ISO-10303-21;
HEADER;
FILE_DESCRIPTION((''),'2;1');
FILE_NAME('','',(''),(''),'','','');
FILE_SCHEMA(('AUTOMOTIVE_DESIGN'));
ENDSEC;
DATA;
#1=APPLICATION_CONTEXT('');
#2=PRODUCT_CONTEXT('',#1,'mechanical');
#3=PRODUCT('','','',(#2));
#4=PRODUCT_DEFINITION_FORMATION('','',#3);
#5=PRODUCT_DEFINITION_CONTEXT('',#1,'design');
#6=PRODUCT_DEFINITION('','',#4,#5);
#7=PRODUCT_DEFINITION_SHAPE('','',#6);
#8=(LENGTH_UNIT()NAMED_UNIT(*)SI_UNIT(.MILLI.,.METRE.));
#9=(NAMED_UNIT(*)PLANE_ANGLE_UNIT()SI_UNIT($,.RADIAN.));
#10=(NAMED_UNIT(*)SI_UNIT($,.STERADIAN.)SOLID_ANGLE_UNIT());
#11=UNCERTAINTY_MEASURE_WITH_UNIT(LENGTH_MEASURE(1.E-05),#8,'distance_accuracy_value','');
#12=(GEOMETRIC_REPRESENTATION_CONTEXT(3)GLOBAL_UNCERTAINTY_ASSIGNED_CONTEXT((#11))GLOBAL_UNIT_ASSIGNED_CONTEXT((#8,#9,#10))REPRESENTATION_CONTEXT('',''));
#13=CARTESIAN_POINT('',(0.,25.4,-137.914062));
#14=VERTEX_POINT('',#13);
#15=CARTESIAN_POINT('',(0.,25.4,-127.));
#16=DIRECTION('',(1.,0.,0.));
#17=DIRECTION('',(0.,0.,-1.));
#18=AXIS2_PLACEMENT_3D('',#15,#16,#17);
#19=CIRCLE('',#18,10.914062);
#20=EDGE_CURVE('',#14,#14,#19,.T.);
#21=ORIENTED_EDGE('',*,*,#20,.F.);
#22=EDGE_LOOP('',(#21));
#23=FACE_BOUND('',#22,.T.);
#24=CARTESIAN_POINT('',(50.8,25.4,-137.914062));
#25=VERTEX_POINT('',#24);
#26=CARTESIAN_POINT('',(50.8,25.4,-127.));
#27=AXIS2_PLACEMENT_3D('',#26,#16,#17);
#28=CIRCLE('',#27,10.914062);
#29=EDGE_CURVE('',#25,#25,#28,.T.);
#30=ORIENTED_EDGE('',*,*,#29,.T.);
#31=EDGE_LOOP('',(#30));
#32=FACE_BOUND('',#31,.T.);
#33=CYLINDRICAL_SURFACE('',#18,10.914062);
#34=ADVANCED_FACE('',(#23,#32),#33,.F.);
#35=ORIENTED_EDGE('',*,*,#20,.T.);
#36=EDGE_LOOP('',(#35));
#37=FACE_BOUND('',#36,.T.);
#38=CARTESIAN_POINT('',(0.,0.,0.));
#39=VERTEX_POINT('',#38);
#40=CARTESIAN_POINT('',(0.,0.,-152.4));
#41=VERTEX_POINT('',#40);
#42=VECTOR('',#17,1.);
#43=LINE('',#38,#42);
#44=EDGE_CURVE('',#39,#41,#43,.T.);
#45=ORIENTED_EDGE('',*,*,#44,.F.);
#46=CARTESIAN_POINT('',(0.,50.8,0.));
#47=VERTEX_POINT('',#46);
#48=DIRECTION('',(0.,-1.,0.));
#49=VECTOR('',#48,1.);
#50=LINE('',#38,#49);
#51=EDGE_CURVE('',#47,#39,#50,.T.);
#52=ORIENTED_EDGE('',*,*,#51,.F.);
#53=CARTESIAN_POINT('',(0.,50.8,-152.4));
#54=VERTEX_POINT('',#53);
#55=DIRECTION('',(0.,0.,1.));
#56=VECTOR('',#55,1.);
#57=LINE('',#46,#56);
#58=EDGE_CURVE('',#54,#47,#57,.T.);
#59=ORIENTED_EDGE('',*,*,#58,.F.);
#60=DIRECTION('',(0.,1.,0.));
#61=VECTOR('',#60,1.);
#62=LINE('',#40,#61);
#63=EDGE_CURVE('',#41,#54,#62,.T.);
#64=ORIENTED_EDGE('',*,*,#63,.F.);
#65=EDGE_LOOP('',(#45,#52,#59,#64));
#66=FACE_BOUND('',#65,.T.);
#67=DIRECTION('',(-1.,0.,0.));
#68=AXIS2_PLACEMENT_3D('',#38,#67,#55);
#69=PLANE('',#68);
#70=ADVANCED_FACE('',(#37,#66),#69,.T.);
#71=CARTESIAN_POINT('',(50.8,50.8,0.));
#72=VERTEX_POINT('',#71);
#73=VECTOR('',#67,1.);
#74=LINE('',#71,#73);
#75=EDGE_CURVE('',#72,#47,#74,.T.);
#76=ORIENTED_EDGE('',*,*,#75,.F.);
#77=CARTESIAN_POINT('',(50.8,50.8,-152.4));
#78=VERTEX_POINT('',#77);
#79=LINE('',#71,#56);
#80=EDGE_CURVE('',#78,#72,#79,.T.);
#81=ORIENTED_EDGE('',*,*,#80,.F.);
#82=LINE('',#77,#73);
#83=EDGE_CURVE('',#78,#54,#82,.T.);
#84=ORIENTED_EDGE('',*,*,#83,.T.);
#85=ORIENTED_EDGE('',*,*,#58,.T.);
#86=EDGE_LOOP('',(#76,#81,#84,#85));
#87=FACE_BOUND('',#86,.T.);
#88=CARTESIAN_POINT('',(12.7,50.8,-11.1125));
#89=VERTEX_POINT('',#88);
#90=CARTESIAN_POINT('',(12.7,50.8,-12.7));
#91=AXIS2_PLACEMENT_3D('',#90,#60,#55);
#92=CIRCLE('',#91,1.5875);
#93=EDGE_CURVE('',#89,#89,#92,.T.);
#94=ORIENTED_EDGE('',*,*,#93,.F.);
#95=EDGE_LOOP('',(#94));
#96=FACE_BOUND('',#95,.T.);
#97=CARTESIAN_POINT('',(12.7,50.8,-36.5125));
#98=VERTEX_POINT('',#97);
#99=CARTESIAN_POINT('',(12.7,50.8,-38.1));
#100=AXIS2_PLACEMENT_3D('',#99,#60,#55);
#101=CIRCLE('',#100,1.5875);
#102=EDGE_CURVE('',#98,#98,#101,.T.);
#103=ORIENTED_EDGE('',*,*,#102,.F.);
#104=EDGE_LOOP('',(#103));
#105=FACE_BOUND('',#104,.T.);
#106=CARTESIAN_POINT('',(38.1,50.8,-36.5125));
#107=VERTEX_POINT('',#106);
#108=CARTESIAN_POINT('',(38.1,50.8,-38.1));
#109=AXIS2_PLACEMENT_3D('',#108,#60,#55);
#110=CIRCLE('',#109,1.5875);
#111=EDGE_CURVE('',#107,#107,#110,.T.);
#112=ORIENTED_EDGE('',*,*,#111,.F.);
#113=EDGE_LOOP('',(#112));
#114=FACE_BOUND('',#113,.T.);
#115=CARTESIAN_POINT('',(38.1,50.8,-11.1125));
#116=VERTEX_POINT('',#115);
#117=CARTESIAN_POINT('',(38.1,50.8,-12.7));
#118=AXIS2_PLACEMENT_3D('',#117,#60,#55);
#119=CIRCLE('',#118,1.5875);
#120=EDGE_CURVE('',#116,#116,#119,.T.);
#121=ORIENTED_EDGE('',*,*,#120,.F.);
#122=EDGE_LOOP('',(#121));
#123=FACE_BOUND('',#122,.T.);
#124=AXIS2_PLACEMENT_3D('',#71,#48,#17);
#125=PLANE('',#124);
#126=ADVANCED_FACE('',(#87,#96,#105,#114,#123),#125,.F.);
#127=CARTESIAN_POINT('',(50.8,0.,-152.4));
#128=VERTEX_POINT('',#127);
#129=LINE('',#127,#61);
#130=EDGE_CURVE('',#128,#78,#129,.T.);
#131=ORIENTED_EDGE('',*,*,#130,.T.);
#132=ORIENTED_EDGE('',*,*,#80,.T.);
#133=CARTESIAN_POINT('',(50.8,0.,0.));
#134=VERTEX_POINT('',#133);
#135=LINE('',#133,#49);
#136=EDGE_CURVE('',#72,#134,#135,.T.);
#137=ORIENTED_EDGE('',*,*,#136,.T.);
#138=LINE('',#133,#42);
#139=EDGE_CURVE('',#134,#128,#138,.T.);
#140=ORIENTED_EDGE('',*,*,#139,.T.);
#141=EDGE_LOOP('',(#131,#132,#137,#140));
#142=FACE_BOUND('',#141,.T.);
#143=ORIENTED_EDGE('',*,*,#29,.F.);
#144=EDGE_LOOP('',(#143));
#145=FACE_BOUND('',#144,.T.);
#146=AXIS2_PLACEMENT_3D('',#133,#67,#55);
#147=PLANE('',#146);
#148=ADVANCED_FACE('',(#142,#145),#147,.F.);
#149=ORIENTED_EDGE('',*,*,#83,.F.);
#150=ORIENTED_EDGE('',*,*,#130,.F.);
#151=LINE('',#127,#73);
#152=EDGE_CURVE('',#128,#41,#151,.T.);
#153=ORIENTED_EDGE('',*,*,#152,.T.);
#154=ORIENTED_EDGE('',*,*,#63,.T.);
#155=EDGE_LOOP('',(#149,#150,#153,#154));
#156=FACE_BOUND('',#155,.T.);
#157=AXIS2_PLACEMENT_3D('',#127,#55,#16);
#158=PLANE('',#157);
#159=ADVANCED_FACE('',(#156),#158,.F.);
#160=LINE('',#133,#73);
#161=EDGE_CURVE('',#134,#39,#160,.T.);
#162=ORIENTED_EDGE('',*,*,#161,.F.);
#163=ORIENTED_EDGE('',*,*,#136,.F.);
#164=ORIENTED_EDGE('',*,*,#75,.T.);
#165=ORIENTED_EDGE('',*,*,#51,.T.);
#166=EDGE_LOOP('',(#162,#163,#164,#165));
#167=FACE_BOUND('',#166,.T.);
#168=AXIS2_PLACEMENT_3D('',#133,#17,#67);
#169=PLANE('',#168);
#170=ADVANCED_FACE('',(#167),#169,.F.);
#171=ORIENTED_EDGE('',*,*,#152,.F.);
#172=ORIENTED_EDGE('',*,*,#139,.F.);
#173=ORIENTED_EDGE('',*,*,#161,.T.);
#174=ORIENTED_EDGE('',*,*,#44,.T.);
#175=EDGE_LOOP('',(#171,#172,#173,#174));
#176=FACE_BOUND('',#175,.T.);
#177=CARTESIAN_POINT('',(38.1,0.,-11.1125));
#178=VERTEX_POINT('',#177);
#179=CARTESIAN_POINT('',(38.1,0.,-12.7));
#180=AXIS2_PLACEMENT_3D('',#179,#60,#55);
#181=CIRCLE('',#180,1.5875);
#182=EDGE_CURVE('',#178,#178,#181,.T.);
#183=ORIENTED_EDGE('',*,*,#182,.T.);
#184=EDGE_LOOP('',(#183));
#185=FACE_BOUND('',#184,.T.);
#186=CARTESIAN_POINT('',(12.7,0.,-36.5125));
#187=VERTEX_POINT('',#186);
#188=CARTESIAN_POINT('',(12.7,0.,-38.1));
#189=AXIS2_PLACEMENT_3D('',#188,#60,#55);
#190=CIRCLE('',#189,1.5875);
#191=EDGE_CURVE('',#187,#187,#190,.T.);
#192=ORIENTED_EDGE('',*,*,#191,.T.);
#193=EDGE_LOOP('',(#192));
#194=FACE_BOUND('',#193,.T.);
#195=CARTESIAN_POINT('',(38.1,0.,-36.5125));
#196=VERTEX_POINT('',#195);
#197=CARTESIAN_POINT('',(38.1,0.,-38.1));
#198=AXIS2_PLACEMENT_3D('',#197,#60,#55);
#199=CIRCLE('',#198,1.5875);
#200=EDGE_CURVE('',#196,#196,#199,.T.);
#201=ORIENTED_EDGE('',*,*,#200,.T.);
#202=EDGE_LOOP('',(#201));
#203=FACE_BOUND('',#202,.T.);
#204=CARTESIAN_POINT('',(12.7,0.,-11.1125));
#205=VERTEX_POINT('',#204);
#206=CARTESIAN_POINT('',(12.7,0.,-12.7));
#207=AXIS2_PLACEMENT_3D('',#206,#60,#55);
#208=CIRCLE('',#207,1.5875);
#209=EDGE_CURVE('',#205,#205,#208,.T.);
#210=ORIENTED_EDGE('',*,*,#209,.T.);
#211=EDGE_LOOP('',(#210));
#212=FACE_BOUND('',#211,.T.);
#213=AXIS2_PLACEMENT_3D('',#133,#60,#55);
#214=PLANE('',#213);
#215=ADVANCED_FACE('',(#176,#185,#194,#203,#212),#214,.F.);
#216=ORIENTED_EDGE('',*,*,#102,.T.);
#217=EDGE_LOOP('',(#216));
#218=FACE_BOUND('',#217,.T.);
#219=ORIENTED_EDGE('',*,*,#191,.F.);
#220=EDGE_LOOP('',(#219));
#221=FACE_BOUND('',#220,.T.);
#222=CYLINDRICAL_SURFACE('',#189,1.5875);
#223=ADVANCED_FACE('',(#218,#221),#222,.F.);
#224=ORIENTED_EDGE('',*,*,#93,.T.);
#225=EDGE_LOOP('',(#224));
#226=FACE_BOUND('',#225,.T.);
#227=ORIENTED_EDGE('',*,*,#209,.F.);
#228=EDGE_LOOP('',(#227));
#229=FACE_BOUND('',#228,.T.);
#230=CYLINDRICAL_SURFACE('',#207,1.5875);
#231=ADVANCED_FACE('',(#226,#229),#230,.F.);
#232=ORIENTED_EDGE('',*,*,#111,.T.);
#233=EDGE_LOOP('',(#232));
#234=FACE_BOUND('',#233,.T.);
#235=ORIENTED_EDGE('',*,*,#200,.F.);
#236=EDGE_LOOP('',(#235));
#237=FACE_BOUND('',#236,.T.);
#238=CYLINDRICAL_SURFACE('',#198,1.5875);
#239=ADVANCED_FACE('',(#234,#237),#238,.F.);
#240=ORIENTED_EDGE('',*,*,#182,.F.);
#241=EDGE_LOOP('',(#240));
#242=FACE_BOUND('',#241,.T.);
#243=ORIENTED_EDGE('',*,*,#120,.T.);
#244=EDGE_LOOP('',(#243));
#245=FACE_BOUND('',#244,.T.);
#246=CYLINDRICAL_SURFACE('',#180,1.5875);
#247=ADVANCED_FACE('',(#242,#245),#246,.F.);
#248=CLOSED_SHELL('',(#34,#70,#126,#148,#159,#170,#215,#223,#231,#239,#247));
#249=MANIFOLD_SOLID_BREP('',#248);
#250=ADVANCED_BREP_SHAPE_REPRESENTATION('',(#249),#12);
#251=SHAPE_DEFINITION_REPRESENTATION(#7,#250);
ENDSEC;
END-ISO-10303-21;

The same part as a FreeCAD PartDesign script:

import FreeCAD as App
import Part
import Sketcher
from FreeCAD import Vector
Q = App.Units.Quantity


def add_polygon(sketch, points):
    """Adds a closed chain of lines whose ends are joined by coincident constraints."""
    first, n = sketch.GeometryCount, len(points)
    for a, b in zip(points, points[1:] + points[:1]):
        sketch.addGeometry(Part.LineSegment(App.Vector(*a, 0), App.Vector(*b, 0)), False)
    for i in range(n):
        sketch.addConstraint(Sketcher.Constraint("Coincident", first + i, 2, first + (i + 1) % n, 1))

doc = App.newDocument("Part")
body = doc.addObject("PartDesign::Body", "Body")

# Sketch on YZ plane
sketch1 = body.newObject("Sketcher::SketchObject", "Sketch")
sketch1.AttachmentSupport = (doc.getObject("YZ_Plane"), [""])
sketch1.MapMode = "FlatFace"
add_polygon(sketch1, [(51, 0), (0, 0), (0, -152), (51, -152)])  # lines 0-3
sketch1.addConstraint(Sketcher.Constraint("Horizontal", 0))
sketch1.addConstraint(Sketcher.Constraint("Vertical", 1))
sketch1.addConstraint(Sketcher.Constraint("Horizontal", 2))
sketch1.addConstraint(Sketcher.Constraint("Vertical", 3))
sketch1.addConstraint(Sketcher.Constraint("Coincident", 0, 2, -1, 1))
sketch1.addConstraint(Sketcher.Constraint("DistanceX", 0, 2, 0, 1, Q("2 in")))
sketch1.addConstraint(Sketcher.Constraint("DistanceY", 1, 2, 1, 1, Q("6 in")))
pad1 = body.newObject("PartDesign::Pad", "Pad")
pad1.Profile = sketch1
pad1.Length = Q("2 in")

# Sketch on YZ plane
sketch2 = body.newObject("Sketcher::SketchObject", "Sketch001")
sketch2.AttachmentSupport = (doc.getObject("YZ_Plane"), [""])
sketch2.MapMode = "FlatFace"
sketch2.AttachmentOffset = App.Placement(Vector(0, 0, 2 * 25.4), App.Rotation())
sketch2.addGeometry(Part.Circle(Vector(25, -127, 0), Vector(0, 0, 1), 11), False)
sketch2.addConstraint(Sketcher.Constraint("Diameter", 0, Q("0.859375 in")))
sketch2.addConstraint(Sketcher.Constraint("DistanceX", -1, 1, 0, 3, Q("1 in")))
sketch2.addConstraint(Sketcher.Constraint("DistanceY", 0, 3, -1, 1, Q("5 in")))
pocket1 = body.newObject("PartDesign::Pocket", "Pocket")
pocket1.Profile = sketch2
pocket1.Type = "ThroughAll"

# Sketch on XZ plane
sketch3 = body.newObject("Sketcher::SketchObject", "Sketch002")
sketch3.AttachmentSupport = (doc.getObject("XZ_Plane"), [""])
sketch3.MapMode = "FlatFace"
sketch3.AttachmentOffset = App.Placement(Vector(0, 0, -2 * 25.4), App.Rotation())
sketch3.addGeometry(Part.Circle(Vector(12.7, -38.1, 0), Vector(0, 0, 1), 1.6), False)
sketch3.addGeometry(Part.Circle(Vector(38.1, -38.1, 0), Vector(0, 0, 1), 1.6), False)
sketch3.addGeometry(Part.Circle(Vector(12.7, -12.7, 0), Vector(0, 0, 1), 1.6), False)
sketch3.addGeometry(Part.Circle(Vector(38.1, -12.7, 0), Vector(0, 0, 1), 1.6), False)
sketch3.addConstraint(Sketcher.Constraint("Equal", 0, 1))
sketch3.addConstraint(Sketcher.Constraint("Equal", 1, 2))
sketch3.addConstraint(Sketcher.Constraint("Equal", 2, 3))
sketch3.addConstraint(Sketcher.Constraint("Horizontal", 0, 3, 1, 3))
sketch3.addConstraint(Sketcher.Constraint("Horizontal", 2, 3, 3, 3))
sketch3.addConstraint(Sketcher.Constraint("Vertical", 0, 3, 2, 3))
sketch3.addConstraint(Sketcher.Constraint("Vertical", 1, 3, 3, 3))
sketch3.addConstraint(Sketcher.Constraint("Diameter", 0, Q("0.125 in")))
sketch3.addConstraint(Sketcher.Constraint("DistanceX", 0, 3, 1, 3, Q("1 in")))
sketch3.addConstraint(Sketcher.Constraint("DistanceY", 0, 3, 2, 3, Q("1 in")))
sketch3.addConstraint(Sketcher.Constraint("DistanceX", -1, 1, 0, 3, Q("0.5 in")))
sketch3.addConstraint(Sketcher.Constraint("DistanceY", 0, 3, -1, 1, Q("1.5 in")))
pocket2 = body.newObject("PartDesign::Pocket", "Pocket001")
pocket2.Profile = sketch3
pocket2.Type = "ThroughAll"
pocket2.Reversed = True

doc.recompute()
